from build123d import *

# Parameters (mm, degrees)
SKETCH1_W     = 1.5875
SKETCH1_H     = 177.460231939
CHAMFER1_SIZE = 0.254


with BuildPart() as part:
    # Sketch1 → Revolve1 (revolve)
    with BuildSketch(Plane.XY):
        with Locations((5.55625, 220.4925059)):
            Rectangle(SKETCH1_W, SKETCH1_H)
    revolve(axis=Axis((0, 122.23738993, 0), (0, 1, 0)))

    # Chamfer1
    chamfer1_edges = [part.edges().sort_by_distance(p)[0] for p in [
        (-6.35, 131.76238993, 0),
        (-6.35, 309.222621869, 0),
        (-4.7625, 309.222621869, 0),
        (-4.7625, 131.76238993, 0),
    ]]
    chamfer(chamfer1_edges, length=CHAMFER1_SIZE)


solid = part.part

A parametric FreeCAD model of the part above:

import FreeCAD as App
import Part
import Sketcher
from FreeCAD import Vector
Q = App.Units.Quantity


def edges_at(feature, points):
    """Names of the edges that pass closest to the given points."""
    edges = feature.Shape.Edges
    near = lambda p: min(range(len(edges)), key=lambda i: edges[i].distToShape(Part.Vertex(*p))[0])
    return sorted({f"Edge{near(p) + 1}" for p in points})

doc = App.newDocument("Part")
body = doc.addObject("PartDesign::Body", "Body")

sketch1 = body.newObject("Sketcher::SketchObject", "Sketch")
sketch1.AttachmentSupport = (doc.getObject("XY_Plane"), [""])
sketch1.MapMode = "FlatFace"
sketch1.addGeometry([
    Part.LineSegment(Vector(4.8, 309.2, 0), Vector(4.8, 131.8, 0)),
    Part.LineSegment(Vector(4.8, 131.8, 0), Vector(6.3, 131.8, 0)),
    Part.LineSegment(Vector(6.3, 131.8, 0), Vector(6.3, 309.2, 0)),
    Part.LineSegment(Vector(6.3, 309.2, 0), Vector(4.8, 309.2, 0)),
], False)
sketch1.addConstraint([
    Sketcher.Constraint("Coincident", 0, 2, 1, 1),
    Sketcher.Constraint("Coincident", 1, 2, 2, 1),
    Sketcher.Constraint("Coincident", 2, 2, 3, 1),
    Sketcher.Constraint("Coincident", 3, 2, 0, 1),
    Sketcher.Constraint("Vertical", 0),
    Sketcher.Constraint("Horizontal", 1),
    Sketcher.Constraint("Vertical", 2),
    Sketcher.Constraint("Horizontal", 3),
    Sketcher.Constraint("DistanceX", 1, 1, 1, 2, Q("0.0625 in")),
    Sketcher.Constraint("DistanceX", -1, 1, 1, 2, Q("0.25 in")),
    Sketcher.Constraint("DistanceY", 0, 2, 0, 1, 177.460232),
    Sketcher.Constraint("DistanceY", -1, 1, 0, 2, 131.76239),
])
revolution = body.newObject("PartDesign::Revolution", "Revolution")
revolution.Profile = sketch1
revolution.ReferenceAxis = (sketch1, ["V_Axis"])
revolution.Angle = 360
doc.recompute()

chamfer = body.newObject("PartDesign::Chamfer", "Chamfer")
chamfer.Base = (revolution, edges_at(revolution, [
    (-6.35, 131.762, 0),
    (-6.35, 309.223, 0),
    (-4.763, 309.223, 0),
    (-4.763, 131.762, 0),
]))
chamfer.Size = Q("0.01 in")

doc.recompute()
